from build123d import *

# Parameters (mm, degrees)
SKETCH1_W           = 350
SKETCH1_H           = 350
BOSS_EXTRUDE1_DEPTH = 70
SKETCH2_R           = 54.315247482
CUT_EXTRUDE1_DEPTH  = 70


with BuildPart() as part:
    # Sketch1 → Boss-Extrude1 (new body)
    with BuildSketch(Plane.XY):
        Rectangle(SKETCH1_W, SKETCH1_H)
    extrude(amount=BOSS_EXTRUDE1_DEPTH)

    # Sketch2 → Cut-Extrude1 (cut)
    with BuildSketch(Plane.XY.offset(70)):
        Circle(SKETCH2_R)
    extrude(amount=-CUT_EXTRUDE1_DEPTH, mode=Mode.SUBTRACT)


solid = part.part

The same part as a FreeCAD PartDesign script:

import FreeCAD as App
import Part
import Sketcher

V = App.Vector


def add_polygon(sketch, points):
    """Adds a closed chain of lines whose ends are joined by coincident constraints."""
    first, n = sketch.GeometryCount, len(points)
    for a, b in zip(points, points[1:] + points[:1]):
        sketch.addGeometry(Part.LineSegment(App.Vector(*a, 0), App.Vector(*b, 0)), False)
    for i in range(n):
        sketch.addConstraint(Sketcher.Constraint("Coincident", first + i, 2, first + (i + 1) % n, 1))

doc = App.newDocument("Part")
body = doc.addObject("PartDesign::Body", "Body")

sketch1 = doc.addObject("Sketcher::SketchObject", "Sketch")
body.addObject(sketch1)
sketch1.AttachmentSupport = (doc.XY_Plane, [""])
sketch1.MapMode = "FlatFace"
add_polygon(sketch1, [(-175, 175), (-175, -175), (175, -175), (175, 175)])
sketch1.addConstraint(Sketcher.Constraint("Vertical", 0))
sketch1.addConstraint(Sketcher.Constraint("Horizontal", 1))
sketch1.addConstraint(Sketcher.Constraint("Vertical", 2))
sketch1.addConstraint(Sketcher.Constraint("Horizontal", 3))
sketch1.addConstraint(Sketcher.Constraint("Symmetric", 0, 2, 2, 2, -1, 1))
sketch1.addConstraint(Sketcher.Constraint("Equal", 3, 0))
sketch1.addConstraint(Sketcher.Constraint("DistanceX", 1, 1, 1, 2, 350.0))
pad1 = doc.addObject("PartDesign::Pad", "Pad")
body.addObject(pad1)
pad1.Profile = sketch1
pad1.Length = 70

sketch2 = doc.addObject("Sketcher::SketchObject", "Sketch001")
body.addObject(sketch2)
sketch2.AttachmentSupport = (doc.XY_Plane, [""])
sketch2.MapMode = "FlatFace"
sketch2.AttachmentOffset = App.Placement(V(0, 0, 70), App.Rotation())
sketch2.addGeometry(Part.Circle(V(0, 0, 0), V(0, 0, 1), 54.315247), False)
sketch2.addConstraint(Sketcher.Constraint("Coincident", 0, 3, -1, 1))
sketch2.addConstraint(Sketcher.Constraint("Diameter", 0, 108.630495))
pocket1 = doc.addObject("PartDesign::Pocket", "Pocket")
body.addObject(pocket1)
pocket1.Profile = sketch2
pocket1.Length = 70

doc.recompute()
